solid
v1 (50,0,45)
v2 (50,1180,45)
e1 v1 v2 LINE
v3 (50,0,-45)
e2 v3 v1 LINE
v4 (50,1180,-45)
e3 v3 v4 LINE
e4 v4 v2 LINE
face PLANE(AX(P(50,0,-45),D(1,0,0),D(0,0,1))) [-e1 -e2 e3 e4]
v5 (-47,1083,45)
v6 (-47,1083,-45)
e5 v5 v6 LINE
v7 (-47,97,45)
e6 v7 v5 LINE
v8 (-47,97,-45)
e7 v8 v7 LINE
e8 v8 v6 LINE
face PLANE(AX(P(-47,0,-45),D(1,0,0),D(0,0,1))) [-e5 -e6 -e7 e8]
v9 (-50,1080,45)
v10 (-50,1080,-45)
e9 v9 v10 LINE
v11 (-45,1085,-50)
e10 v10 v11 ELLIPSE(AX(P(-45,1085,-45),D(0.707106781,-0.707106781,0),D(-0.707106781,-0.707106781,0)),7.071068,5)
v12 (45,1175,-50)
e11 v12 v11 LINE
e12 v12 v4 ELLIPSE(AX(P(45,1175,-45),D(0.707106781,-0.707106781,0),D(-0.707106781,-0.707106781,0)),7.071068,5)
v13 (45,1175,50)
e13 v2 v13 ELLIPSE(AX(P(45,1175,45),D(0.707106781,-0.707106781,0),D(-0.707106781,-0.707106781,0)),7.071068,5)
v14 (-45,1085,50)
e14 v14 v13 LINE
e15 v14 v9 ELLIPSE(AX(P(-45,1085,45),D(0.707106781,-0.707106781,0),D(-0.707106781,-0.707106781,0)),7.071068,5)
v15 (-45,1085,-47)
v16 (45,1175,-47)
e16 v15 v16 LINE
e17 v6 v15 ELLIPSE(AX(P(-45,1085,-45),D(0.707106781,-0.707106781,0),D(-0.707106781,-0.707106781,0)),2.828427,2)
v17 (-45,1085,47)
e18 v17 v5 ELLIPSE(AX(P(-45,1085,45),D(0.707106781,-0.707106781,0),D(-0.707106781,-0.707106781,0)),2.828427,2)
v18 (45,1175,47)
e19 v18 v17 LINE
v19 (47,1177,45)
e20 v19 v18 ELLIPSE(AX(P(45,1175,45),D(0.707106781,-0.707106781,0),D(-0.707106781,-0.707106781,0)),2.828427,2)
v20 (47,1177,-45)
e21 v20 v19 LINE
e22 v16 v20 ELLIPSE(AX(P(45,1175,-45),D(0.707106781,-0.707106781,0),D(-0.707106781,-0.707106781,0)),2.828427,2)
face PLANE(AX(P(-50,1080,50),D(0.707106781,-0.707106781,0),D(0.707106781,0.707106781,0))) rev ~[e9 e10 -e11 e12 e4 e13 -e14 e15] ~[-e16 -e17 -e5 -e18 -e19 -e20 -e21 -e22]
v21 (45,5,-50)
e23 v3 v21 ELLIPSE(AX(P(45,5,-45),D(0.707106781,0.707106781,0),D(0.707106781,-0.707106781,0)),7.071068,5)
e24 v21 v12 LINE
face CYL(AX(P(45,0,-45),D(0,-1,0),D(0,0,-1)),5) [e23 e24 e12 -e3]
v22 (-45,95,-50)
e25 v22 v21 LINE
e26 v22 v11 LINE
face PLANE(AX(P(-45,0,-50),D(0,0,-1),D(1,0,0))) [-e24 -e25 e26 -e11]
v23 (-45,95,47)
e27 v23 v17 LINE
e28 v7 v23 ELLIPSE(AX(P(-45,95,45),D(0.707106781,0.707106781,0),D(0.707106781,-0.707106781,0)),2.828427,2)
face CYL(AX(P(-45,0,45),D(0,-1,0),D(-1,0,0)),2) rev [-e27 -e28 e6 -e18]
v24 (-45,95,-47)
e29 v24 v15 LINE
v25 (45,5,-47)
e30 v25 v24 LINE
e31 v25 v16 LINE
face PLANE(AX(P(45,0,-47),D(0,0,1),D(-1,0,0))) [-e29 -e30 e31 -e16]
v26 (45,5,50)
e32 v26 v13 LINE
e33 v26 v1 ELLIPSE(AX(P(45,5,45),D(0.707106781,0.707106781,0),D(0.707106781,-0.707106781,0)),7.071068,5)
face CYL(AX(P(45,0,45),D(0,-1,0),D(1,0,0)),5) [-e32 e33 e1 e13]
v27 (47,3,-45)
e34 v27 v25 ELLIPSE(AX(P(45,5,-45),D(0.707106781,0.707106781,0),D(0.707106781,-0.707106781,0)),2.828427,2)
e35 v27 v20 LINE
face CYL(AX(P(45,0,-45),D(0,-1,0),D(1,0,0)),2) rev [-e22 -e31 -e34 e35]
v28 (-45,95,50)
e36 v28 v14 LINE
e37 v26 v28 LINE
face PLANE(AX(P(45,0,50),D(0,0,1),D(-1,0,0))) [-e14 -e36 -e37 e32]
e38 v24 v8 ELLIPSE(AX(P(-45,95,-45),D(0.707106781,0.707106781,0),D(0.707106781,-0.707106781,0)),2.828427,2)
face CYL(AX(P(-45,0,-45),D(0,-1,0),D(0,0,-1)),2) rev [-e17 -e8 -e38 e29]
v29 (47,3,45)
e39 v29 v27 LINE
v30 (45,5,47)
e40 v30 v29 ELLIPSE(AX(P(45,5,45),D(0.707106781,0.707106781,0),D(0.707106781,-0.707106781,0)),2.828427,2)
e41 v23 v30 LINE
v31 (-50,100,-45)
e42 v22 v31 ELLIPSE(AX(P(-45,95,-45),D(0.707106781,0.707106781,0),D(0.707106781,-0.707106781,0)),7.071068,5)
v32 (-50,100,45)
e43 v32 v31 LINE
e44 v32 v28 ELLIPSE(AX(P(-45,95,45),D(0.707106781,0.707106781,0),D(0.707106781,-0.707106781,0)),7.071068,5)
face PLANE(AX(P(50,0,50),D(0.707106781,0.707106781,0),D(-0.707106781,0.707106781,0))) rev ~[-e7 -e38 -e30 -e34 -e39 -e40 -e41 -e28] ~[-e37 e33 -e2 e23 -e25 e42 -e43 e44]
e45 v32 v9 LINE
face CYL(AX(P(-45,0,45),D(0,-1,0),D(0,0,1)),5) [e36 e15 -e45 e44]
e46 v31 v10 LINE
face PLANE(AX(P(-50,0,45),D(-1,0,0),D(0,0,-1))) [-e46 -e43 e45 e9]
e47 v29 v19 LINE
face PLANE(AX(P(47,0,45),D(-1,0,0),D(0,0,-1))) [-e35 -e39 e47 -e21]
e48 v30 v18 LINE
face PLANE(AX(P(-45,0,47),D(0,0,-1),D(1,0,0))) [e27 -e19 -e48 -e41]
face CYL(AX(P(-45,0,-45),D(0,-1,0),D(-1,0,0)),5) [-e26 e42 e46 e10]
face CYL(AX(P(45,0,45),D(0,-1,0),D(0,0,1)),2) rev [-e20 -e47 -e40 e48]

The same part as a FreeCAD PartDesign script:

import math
import FreeCAD as App
import Part
import Sketcher
from FreeCAD import Vector

doc = App.newDocument("Part")
params = doc.addObject("Spreadsheet::Sheet", "Params")
for row, (alias, value) in enumerate([
    ("sketch1_radius", "5 mm"),
    ("sketch1_radius2", "2 mm"),
    ("sketch1_width", "90 mm"),
    ("pad1_length", "1180 mm"),
    ("sketch2_width", "100 mm"),
    ("sketch3_width", "100 mm"),
], start=1):
    params.set(f"A{row}", alias)
    params.set(f"B{row}", "=" + value)
    params.setAlias(f"B{row}", alias)

body = doc.addObject("PartDesign::Body", "Body")

sketch1 = body.newObject("Sketcher::SketchObject", "Sketch")
sketch1.AttachmentSupport = (doc.getObject("XZ_Plane"), [""])
sketch1.MapMode = "FlatFace"
sketch1.addGeometry([
    Part.ArcOfCircle(Part.Circle(Vector(45, 45, 0), Vector(0, 0, 1), 5), math.radians(0), math.radians(90)),
    Part.LineSegment(Vector(45, 50, 0), Vector(-45, 50, 0)),
    Part.ArcOfCircle(Part.Circle(Vector(-45, 45, 0), Vector(0, 0, 1), 5), math.radians(90), math.radians(180)),
    Part.LineSegment(Vector(-50, 45, 0), Vector(-50, -45, 0)),
    Part.ArcOfCircle(Part.Circle(Vector(-45, -45, 0), Vector(0, 0, 1), 5), math.radians(180), math.radians(270)),
    Part.LineSegment(Vector(-45, -50, 0), Vector(45, -50, 0)),
    Part.ArcOfCircle(Part.Circle(Vector(45, -45, 0), Vector(0, 0, 1), 5), math.radians(-90), math.radians(0)),
    Part.LineSegment(Vector(50, -45, 0), Vector(50, 45, 0)),
    Part.LineSegment(Vector(-47, -45, 0), Vector(-47, 45, 0)),
    Part.ArcOfCircle(Part.Circle(Vector(-45, 45, 0), Vector(0, 0, 1), 2), math.radians(90), math.radians(180)),
    Part.LineSegment(Vector(-45, 47, 0), Vector(45, 47, 0)),
    Part.ArcOfCircle(Part.Circle(Vector(45, 45, 0), Vector(0, 0, 1), 2), math.radians(0), math.radians(90)),
    Part.LineSegment(Vector(47, 45, 0), Vector(47, -45, 0)),
    Part.ArcOfCircle(Part.Circle(Vector(45, -45, 0), Vector(0, 0, 1), 2), math.radians(-90), math.radians(0)),
    Part.LineSegment(Vector(45, -47, 0), Vector(-45, -47, 0)),
    Part.ArcOfCircle(Part.Circle(Vector(-45, -45, 0), Vector(0, 0, 1), 2), math.radians(180), math.radians(270)),
], False)
sketch1.addConstraint([
    Sketcher.Constraint("Tangent", 0, 2, 1, 1),
    Sketcher.Constraint("Tangent", 1, 2, 2, 1),
    Sketcher.Constraint("Tangent", 2, 2, 3, 1),
    Sketcher.Constraint("Tangent", 3, 2, 4, 1),
    Sketcher.Constraint("Tangent", 4, 2, 5, 1),
    Sketcher.Constraint("Tangent", 5, 2, 6, 1),
    Sketcher.Constraint("Tangent", 6, 2, 7, 1),
    Sketcher.Constraint("Tangent", 7, 2, 0, 1),
    Sketcher.Constraint("Tangent", 8, 2, 9, 2),
    Sketcher.Constraint("Tangent", 9, 1, 10, 1),
    Sketcher.Constraint("Tangent", 10, 2, 11, 2),
    Sketcher.Constraint("Tangent", 11, 1, 12, 1),
    Sketcher.Constraint("Tangent", 12, 2, 13, 2),
    Sketcher.Constraint("Tangent", 13, 1, 14, 1),
    Sketcher.Constraint("Tangent", 14, 2, 15, 2),
    Sketcher.Constraint("Tangent", 15, 1, 8, 1),
    Sketcher.Constraint("Horizontal", 1),
    Sketcher.Constraint("Vertical", 3),
    Sketcher.Constraint("Horizontal", 5),
    Sketcher.Constraint("Vertical", 7),
    Sketcher.Constraint("Vertical", 8),
    Sketcher.Constraint("Horizontal", 10),
    Sketcher.Constraint("Vertical", 12),
    Sketcher.Constraint("Horizontal", 14),
    Sketcher.Constraint("Coincident", 9, 3, 2, 3),
    Sketcher.Constraint("Coincident", 11, 3, 0, 3),
    Sketcher.Constraint("Coincident", 13, 3, 6, 3),
    Sketcher.Constraint("Equal", 0, 2),
    Sketcher.Constraint("Equal", 2, 4),
    Sketcher.Constraint("Equal", 4, 6),
    Sketcher.Constraint("Equal", 13, 15),
    Sketcher.Constraint("Symmetric", 0, 3, 4, 3, -1, 1),
    Sketcher.Constraint("Equal", 14, 3),
    Sketcher.Constraint("Radius", 0, 5.0),
    Sketcher.Constraint("Radius", 9, 2.0),
    Sketcher.Constraint("DistanceX", 1, 2, 1, 1, 90.0),
])
sketch1.setExpression("Constraints[33]", "Params.sketch1_radius")
sketch1.setExpression("Constraints[34]", "Params.sketch1_radius2")
sketch1.setExpression("Constraints[35]", "Params.sketch1_width")
pad1 = body.newObject("PartDesign::Pad", "Pad")
pad1.Profile = sketch1
pad1.setExpression("Length", "Params.pad1_length")
pad1.Reversed = True

sketch2 = body.newObject("Sketcher::SketchObject", "Sketch001")
sketch2.AttachmentSupport = (doc.getObject("XY_Plane"), [""])
sketch2.MapMode = "FlatFace"
sketch2.AttachmentOffset = App.Placement(Vector(0, 0, 50), App.Rotation())
sketch2.addGeometry([
    Part.LineSegment(Vector(-50, 100, 0), Vector(-50, 0, 0)),
    Part.LineSegment(Vector(-50, 0, 0), Vector(50, 0, 0)),
    Part.LineSegment(Vector(50, 0, 0), Vector(-50, 100, 0)),
], False)
sketch2.addConstraint([
    Sketcher.Constraint("Coincident", 0, 2, 1, 1),
    Sketcher.Constraint("Coincident", 1, 2, 2, 1),
    Sketcher.Constraint("Coincident", 2, 2, 0, 1),
    Sketcher.Constraint("Vertical", 0),
    Sketcher.Constraint("Horizontal", 1),
    Sketcher.Constraint("Symmetric", 0, 2, 1, 2, -1, 1),
    Sketcher.Constraint("Equal", 1, 0),
    Sketcher.Constraint("DistanceX", 1, 1, 1, 2, 100.0),
])
sketch2.setExpression("Constraints[7]", "Params.sketch2_width")
pocket1 = body.newObject("PartDesign::Pocket", "Pocket")
pocket1.Profile = sketch2
pocket1.Type = "ThroughAll"

sketch3 = body.newObject("Sketcher::SketchObject", "Sketch002")
sketch3.AttachmentSupport = (doc.getObject("XY_Plane"), [""])
sketch3.MapMode = "FlatFace"
sketch3.AttachmentOffset = App.Placement(Vector(0, 0, 50), App.Rotation())
sketch3.addGeometry([
    Part.LineSegment(Vector(-50, 100, 0), Vector(-50, 0, 0)),
    Part.LineSegment(Vector(-50, 0, 0), Vector(50, 0, 0)),
    Part.LineSegment(Vector(50, 0, 0), Vector(-50, 100, 0)),
    Part.LineSegment(Vector(50, 1180, 0), Vector(-50, 1180, 0)),
    Part.LineSegment(Vector(-50, 1180, 0), Vector(-50, 1080, 0)),
    Part.LineSegment(Vector(-50, 1080, 0), Vector(50, 1180, 0)),
], False)
sketch3.addConstraint([
    Sketcher.Constraint("Coincident", 0, 2, 1, 1),
    Sketcher.Constraint("Coincident", 1, 2, 2, 1),
    Sketcher.Constraint("Coincident", 2, 2, 0, 1),
    Sketcher.Constraint("Coincident", 3, 2, 4, 1),
    Sketcher.Constraint("Coincident", 4, 2, 5, 1),
    Sketcher.Constraint("Coincident", 5, 2, 3, 1),
    Sketcher.Constraint("Vertical", 0),
    Sketcher.Constraint("Horizontal", 1),
    Sketcher.Constraint("Horizontal", 3),
    Sketcher.Constraint("Vertical", 4),
    Sketcher.Constraint("Symmetric", 0, 2, 1, 2, -1, 1),
    Sketcher.Constraint("Perpendicular", 2, 5),
    Sketcher.Constraint("Vertical", 2, 2, 3, 2),
    Sketcher.Constraint("Vertical", 1, 2, 5, 2),
    Sketcher.Constraint("Equal", 3, 0),
    Sketcher.Constraint("DistanceX", 1, 1, 1, 2, 100.0),
    Sketcher.Constraint("DistanceY", -1, 1, 3, 2, 1180.0),
])
sketch3.setExpression("Constraints[15]", "Params.sketch3_width")
pocket2 = body.newObject("PartDesign::Pocket", "Pocket001")
pocket2.Profile = sketch3
pocket2.Type = "ThroughAll"

doc.recompute()
